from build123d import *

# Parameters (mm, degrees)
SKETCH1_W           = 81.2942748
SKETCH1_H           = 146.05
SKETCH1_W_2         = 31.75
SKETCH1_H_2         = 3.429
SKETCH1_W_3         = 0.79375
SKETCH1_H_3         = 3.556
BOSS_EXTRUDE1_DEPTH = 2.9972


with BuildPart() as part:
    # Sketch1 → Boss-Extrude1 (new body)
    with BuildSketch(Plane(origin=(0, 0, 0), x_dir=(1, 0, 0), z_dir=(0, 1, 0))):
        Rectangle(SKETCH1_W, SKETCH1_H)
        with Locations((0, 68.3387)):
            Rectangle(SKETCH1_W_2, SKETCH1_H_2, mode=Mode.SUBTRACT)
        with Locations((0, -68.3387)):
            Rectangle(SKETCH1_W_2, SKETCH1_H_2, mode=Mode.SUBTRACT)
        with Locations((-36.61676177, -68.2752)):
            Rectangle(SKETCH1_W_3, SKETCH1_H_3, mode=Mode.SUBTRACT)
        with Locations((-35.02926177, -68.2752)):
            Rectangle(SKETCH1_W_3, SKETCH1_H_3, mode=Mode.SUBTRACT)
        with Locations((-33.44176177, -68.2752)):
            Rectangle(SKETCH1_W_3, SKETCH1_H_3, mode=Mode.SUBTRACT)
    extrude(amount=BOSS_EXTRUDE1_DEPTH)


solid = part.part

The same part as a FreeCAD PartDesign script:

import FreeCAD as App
import Part
import Sketcher
from FreeCAD import Vector
Q = App.Units.Quantity


def add_polygon(sketch, points):
    """Adds a closed chain of lines whose ends are joined by coincident constraints."""
    first, n = sketch.GeometryCount, len(points)
    for a, b in zip(points, points[1:] + points[:1]):
        sketch.addGeometry(Part.LineSegment(App.Vector(*a, 0), App.Vector(*b, 0)), False)
    for i in range(n):
        sketch.addConstraint(Sketcher.Constraint("Coincident", first + i, 2, first + (i + 1) % n, 1))

doc = App.newDocument("Part")
body = doc.addObject("PartDesign::Body", "Body")

# Sketch on XZ plane
sketch1 = body.newObject("Sketcher::SketchObject", "Sketch")
sketch1.AttachmentSupport = (doc.getObject("XZ_Plane"), [""])
sketch1.MapMode = "FlatFace"
add_polygon(sketch1, [(-40.6, -73), (-40.6, 73), (40.6, 73), (40.6, -73)])  # lines 0-3
add_polygon(sketch1, [(-36.2, 70.1), (-37, 70.1), (-37, 66.5), (-36.2, 66.5)])  # lines 4-7
add_polygon(sketch1, [(-34.6, 70.1), (-35.4, 70.1), (-35.4, 66.5), (-34.6, 66.5)])  # lines 8-11
add_polygon(sketch1, [(-33, 70.1), (-33.8, 70.1), (-33.8, 66.5), (-33, 66.5)])  # lines 12-15
add_polygon(sketch1, [(15.9, 70.1), (-15.9, 70.1), (-15.9, 66.6), (15.9, 66.6)])  # lines 16-19
add_polygon(sketch1, [(15.9, -66.6), (-15.9, -66.6), (-15.9, -70.1), (15.9, -70.1)])  # lines 20-23
sketch1.addConstraint(Sketcher.Constraint("Vertical", 0))
sketch1.addConstraint(Sketcher.Constraint("Horizontal", 1))
sketch1.addConstraint(Sketcher.Constraint("Vertical", 2))
sketch1.addConstraint(Sketcher.Constraint("Horizontal", 3))
sketch1.addConstraint(Sketcher.Constraint("Horizontal", 4))
sketch1.addConstraint(Sketcher.Constraint("Vertical", 5))
sketch1.addConstraint(Sketcher.Constraint("Horizontal", 6))
sketch1.addConstraint(Sketcher.Constraint("Vertical", 7))
sketch1.addConstraint(Sketcher.Constraint("Horizontal", 8))
sketch1.addConstraint(Sketcher.Constraint("Vertical", 9))
sketch1.addConstraint(Sketcher.Constraint("Horizontal", 10))
sketch1.addConstraint(Sketcher.Constraint("Vertical", 11))
sketch1.addConstraint(Sketcher.Constraint("Horizontal", 12))
sketch1.addConstraint(Sketcher.Constraint("Vertical", 13))
sketch1.addConstraint(Sketcher.Constraint("Horizontal", 14))
sketch1.addConstraint(Sketcher.Constraint("Vertical", 15))
sketch1.addConstraint(Sketcher.Constraint("Horizontal", 16))
sketch1.addConstraint(Sketcher.Constraint("Vertical", 17))
sketch1.addConstraint(Sketcher.Constraint("Horizontal", 18))
sketch1.addConstraint(Sketcher.Constraint("Vertical", 19))
sketch1.addConstraint(Sketcher.Constraint("Horizontal", 20))
sketch1.addConstraint(Sketcher.Constraint("Vertical", 21))
sketch1.addConstraint(Sketcher.Constraint("Horizontal", 22))
sketch1.addConstraint(Sketcher.Constraint("Vertical", 23))
sketch1.addConstraint(Sketcher.Constraint("Symmetric", 0, 2, 2, 2, -1, 1))
sketch1.addConstraint(Sketcher.Constraint("Symmetric", 18, 2, 20, 2, -1, 1))
sketch1.addConstraint(Sketcher.Constraint("Symmetric", 16, 2, 22, 2, -1, 1))
sketch1.addConstraint(Sketcher.Constraint("Horizontal", 7, 2, 8, 2))
sketch1.addConstraint(Sketcher.Constraint("Horizontal", 6, 2, 9, 2))
sketch1.addConstraint(Sketcher.Constraint("Horizontal", 11, 2, 12, 2))
sketch1.addConstraint(Sketcher.Constraint("Horizontal", 10, 2, 13, 2))
sketch1.addConstraint(Sketcher.Constraint("Horizontal", 15, 2, 16, 2))
sketch1.addConstraint(Sketcher.Constraint("Vertical", 17, 2, 20, 2))
sketch1.addConstraint(Sketcher.Constraint("Equal", 6, 8))
sketch1.addConstraint(Sketcher.Constraint("Equal", 10, 12))
sketch1.addConstraint(Sketcher.Constraint("DistanceX", 16, 2, 16, 1, Q("1.25 in")))
sketch1.addConstraint(Sketcher.Constraint("DistanceY", 0, 1, 0, 2, Q("5.75 in")))
sketch1.addConstraint(Sketcher.Constraint("DistanceY", 5, 2, 5, 1, Q("0.14 in")))
sketch1.addConstraint(Sketcher.Constraint("DistanceX", 4, 2, 4, 1, Q("0.03125 in")))
sketch1.addConstraint(Sketcher.Constraint("DistanceY", 17, 2, 17, 1, Q("0.135 in")))
sketch1.addConstraint(Sketcher.Constraint("DistanceY", -1, 1, 4, 2, Q("2.758 in")))
sketch1.addConstraint(Sketcher.Constraint("DistanceX", 7, 2, 8, 2, Q("0.03125 in")))
sketch1.addConstraint(Sketcher.Constraint("DistanceX", 11, 2, 12, 2, Q("0.03125 in")))
sketch1.addConstraint(Sketcher.Constraint("DistanceX", 0, 2, 4, 2, Q("3.633501 mm")))
sketch1.addConstraint(Sketcher.Constraint("DistanceX", 1, 1, 1, 2, Q("81.294275 mm")))
pad1 = body.newObject("PartDesign::Pad", "Pad")
pad1.Profile = sketch1
pad1.Length = Q("0.118 in")
pad1.Reversed = True

doc.recompute()
